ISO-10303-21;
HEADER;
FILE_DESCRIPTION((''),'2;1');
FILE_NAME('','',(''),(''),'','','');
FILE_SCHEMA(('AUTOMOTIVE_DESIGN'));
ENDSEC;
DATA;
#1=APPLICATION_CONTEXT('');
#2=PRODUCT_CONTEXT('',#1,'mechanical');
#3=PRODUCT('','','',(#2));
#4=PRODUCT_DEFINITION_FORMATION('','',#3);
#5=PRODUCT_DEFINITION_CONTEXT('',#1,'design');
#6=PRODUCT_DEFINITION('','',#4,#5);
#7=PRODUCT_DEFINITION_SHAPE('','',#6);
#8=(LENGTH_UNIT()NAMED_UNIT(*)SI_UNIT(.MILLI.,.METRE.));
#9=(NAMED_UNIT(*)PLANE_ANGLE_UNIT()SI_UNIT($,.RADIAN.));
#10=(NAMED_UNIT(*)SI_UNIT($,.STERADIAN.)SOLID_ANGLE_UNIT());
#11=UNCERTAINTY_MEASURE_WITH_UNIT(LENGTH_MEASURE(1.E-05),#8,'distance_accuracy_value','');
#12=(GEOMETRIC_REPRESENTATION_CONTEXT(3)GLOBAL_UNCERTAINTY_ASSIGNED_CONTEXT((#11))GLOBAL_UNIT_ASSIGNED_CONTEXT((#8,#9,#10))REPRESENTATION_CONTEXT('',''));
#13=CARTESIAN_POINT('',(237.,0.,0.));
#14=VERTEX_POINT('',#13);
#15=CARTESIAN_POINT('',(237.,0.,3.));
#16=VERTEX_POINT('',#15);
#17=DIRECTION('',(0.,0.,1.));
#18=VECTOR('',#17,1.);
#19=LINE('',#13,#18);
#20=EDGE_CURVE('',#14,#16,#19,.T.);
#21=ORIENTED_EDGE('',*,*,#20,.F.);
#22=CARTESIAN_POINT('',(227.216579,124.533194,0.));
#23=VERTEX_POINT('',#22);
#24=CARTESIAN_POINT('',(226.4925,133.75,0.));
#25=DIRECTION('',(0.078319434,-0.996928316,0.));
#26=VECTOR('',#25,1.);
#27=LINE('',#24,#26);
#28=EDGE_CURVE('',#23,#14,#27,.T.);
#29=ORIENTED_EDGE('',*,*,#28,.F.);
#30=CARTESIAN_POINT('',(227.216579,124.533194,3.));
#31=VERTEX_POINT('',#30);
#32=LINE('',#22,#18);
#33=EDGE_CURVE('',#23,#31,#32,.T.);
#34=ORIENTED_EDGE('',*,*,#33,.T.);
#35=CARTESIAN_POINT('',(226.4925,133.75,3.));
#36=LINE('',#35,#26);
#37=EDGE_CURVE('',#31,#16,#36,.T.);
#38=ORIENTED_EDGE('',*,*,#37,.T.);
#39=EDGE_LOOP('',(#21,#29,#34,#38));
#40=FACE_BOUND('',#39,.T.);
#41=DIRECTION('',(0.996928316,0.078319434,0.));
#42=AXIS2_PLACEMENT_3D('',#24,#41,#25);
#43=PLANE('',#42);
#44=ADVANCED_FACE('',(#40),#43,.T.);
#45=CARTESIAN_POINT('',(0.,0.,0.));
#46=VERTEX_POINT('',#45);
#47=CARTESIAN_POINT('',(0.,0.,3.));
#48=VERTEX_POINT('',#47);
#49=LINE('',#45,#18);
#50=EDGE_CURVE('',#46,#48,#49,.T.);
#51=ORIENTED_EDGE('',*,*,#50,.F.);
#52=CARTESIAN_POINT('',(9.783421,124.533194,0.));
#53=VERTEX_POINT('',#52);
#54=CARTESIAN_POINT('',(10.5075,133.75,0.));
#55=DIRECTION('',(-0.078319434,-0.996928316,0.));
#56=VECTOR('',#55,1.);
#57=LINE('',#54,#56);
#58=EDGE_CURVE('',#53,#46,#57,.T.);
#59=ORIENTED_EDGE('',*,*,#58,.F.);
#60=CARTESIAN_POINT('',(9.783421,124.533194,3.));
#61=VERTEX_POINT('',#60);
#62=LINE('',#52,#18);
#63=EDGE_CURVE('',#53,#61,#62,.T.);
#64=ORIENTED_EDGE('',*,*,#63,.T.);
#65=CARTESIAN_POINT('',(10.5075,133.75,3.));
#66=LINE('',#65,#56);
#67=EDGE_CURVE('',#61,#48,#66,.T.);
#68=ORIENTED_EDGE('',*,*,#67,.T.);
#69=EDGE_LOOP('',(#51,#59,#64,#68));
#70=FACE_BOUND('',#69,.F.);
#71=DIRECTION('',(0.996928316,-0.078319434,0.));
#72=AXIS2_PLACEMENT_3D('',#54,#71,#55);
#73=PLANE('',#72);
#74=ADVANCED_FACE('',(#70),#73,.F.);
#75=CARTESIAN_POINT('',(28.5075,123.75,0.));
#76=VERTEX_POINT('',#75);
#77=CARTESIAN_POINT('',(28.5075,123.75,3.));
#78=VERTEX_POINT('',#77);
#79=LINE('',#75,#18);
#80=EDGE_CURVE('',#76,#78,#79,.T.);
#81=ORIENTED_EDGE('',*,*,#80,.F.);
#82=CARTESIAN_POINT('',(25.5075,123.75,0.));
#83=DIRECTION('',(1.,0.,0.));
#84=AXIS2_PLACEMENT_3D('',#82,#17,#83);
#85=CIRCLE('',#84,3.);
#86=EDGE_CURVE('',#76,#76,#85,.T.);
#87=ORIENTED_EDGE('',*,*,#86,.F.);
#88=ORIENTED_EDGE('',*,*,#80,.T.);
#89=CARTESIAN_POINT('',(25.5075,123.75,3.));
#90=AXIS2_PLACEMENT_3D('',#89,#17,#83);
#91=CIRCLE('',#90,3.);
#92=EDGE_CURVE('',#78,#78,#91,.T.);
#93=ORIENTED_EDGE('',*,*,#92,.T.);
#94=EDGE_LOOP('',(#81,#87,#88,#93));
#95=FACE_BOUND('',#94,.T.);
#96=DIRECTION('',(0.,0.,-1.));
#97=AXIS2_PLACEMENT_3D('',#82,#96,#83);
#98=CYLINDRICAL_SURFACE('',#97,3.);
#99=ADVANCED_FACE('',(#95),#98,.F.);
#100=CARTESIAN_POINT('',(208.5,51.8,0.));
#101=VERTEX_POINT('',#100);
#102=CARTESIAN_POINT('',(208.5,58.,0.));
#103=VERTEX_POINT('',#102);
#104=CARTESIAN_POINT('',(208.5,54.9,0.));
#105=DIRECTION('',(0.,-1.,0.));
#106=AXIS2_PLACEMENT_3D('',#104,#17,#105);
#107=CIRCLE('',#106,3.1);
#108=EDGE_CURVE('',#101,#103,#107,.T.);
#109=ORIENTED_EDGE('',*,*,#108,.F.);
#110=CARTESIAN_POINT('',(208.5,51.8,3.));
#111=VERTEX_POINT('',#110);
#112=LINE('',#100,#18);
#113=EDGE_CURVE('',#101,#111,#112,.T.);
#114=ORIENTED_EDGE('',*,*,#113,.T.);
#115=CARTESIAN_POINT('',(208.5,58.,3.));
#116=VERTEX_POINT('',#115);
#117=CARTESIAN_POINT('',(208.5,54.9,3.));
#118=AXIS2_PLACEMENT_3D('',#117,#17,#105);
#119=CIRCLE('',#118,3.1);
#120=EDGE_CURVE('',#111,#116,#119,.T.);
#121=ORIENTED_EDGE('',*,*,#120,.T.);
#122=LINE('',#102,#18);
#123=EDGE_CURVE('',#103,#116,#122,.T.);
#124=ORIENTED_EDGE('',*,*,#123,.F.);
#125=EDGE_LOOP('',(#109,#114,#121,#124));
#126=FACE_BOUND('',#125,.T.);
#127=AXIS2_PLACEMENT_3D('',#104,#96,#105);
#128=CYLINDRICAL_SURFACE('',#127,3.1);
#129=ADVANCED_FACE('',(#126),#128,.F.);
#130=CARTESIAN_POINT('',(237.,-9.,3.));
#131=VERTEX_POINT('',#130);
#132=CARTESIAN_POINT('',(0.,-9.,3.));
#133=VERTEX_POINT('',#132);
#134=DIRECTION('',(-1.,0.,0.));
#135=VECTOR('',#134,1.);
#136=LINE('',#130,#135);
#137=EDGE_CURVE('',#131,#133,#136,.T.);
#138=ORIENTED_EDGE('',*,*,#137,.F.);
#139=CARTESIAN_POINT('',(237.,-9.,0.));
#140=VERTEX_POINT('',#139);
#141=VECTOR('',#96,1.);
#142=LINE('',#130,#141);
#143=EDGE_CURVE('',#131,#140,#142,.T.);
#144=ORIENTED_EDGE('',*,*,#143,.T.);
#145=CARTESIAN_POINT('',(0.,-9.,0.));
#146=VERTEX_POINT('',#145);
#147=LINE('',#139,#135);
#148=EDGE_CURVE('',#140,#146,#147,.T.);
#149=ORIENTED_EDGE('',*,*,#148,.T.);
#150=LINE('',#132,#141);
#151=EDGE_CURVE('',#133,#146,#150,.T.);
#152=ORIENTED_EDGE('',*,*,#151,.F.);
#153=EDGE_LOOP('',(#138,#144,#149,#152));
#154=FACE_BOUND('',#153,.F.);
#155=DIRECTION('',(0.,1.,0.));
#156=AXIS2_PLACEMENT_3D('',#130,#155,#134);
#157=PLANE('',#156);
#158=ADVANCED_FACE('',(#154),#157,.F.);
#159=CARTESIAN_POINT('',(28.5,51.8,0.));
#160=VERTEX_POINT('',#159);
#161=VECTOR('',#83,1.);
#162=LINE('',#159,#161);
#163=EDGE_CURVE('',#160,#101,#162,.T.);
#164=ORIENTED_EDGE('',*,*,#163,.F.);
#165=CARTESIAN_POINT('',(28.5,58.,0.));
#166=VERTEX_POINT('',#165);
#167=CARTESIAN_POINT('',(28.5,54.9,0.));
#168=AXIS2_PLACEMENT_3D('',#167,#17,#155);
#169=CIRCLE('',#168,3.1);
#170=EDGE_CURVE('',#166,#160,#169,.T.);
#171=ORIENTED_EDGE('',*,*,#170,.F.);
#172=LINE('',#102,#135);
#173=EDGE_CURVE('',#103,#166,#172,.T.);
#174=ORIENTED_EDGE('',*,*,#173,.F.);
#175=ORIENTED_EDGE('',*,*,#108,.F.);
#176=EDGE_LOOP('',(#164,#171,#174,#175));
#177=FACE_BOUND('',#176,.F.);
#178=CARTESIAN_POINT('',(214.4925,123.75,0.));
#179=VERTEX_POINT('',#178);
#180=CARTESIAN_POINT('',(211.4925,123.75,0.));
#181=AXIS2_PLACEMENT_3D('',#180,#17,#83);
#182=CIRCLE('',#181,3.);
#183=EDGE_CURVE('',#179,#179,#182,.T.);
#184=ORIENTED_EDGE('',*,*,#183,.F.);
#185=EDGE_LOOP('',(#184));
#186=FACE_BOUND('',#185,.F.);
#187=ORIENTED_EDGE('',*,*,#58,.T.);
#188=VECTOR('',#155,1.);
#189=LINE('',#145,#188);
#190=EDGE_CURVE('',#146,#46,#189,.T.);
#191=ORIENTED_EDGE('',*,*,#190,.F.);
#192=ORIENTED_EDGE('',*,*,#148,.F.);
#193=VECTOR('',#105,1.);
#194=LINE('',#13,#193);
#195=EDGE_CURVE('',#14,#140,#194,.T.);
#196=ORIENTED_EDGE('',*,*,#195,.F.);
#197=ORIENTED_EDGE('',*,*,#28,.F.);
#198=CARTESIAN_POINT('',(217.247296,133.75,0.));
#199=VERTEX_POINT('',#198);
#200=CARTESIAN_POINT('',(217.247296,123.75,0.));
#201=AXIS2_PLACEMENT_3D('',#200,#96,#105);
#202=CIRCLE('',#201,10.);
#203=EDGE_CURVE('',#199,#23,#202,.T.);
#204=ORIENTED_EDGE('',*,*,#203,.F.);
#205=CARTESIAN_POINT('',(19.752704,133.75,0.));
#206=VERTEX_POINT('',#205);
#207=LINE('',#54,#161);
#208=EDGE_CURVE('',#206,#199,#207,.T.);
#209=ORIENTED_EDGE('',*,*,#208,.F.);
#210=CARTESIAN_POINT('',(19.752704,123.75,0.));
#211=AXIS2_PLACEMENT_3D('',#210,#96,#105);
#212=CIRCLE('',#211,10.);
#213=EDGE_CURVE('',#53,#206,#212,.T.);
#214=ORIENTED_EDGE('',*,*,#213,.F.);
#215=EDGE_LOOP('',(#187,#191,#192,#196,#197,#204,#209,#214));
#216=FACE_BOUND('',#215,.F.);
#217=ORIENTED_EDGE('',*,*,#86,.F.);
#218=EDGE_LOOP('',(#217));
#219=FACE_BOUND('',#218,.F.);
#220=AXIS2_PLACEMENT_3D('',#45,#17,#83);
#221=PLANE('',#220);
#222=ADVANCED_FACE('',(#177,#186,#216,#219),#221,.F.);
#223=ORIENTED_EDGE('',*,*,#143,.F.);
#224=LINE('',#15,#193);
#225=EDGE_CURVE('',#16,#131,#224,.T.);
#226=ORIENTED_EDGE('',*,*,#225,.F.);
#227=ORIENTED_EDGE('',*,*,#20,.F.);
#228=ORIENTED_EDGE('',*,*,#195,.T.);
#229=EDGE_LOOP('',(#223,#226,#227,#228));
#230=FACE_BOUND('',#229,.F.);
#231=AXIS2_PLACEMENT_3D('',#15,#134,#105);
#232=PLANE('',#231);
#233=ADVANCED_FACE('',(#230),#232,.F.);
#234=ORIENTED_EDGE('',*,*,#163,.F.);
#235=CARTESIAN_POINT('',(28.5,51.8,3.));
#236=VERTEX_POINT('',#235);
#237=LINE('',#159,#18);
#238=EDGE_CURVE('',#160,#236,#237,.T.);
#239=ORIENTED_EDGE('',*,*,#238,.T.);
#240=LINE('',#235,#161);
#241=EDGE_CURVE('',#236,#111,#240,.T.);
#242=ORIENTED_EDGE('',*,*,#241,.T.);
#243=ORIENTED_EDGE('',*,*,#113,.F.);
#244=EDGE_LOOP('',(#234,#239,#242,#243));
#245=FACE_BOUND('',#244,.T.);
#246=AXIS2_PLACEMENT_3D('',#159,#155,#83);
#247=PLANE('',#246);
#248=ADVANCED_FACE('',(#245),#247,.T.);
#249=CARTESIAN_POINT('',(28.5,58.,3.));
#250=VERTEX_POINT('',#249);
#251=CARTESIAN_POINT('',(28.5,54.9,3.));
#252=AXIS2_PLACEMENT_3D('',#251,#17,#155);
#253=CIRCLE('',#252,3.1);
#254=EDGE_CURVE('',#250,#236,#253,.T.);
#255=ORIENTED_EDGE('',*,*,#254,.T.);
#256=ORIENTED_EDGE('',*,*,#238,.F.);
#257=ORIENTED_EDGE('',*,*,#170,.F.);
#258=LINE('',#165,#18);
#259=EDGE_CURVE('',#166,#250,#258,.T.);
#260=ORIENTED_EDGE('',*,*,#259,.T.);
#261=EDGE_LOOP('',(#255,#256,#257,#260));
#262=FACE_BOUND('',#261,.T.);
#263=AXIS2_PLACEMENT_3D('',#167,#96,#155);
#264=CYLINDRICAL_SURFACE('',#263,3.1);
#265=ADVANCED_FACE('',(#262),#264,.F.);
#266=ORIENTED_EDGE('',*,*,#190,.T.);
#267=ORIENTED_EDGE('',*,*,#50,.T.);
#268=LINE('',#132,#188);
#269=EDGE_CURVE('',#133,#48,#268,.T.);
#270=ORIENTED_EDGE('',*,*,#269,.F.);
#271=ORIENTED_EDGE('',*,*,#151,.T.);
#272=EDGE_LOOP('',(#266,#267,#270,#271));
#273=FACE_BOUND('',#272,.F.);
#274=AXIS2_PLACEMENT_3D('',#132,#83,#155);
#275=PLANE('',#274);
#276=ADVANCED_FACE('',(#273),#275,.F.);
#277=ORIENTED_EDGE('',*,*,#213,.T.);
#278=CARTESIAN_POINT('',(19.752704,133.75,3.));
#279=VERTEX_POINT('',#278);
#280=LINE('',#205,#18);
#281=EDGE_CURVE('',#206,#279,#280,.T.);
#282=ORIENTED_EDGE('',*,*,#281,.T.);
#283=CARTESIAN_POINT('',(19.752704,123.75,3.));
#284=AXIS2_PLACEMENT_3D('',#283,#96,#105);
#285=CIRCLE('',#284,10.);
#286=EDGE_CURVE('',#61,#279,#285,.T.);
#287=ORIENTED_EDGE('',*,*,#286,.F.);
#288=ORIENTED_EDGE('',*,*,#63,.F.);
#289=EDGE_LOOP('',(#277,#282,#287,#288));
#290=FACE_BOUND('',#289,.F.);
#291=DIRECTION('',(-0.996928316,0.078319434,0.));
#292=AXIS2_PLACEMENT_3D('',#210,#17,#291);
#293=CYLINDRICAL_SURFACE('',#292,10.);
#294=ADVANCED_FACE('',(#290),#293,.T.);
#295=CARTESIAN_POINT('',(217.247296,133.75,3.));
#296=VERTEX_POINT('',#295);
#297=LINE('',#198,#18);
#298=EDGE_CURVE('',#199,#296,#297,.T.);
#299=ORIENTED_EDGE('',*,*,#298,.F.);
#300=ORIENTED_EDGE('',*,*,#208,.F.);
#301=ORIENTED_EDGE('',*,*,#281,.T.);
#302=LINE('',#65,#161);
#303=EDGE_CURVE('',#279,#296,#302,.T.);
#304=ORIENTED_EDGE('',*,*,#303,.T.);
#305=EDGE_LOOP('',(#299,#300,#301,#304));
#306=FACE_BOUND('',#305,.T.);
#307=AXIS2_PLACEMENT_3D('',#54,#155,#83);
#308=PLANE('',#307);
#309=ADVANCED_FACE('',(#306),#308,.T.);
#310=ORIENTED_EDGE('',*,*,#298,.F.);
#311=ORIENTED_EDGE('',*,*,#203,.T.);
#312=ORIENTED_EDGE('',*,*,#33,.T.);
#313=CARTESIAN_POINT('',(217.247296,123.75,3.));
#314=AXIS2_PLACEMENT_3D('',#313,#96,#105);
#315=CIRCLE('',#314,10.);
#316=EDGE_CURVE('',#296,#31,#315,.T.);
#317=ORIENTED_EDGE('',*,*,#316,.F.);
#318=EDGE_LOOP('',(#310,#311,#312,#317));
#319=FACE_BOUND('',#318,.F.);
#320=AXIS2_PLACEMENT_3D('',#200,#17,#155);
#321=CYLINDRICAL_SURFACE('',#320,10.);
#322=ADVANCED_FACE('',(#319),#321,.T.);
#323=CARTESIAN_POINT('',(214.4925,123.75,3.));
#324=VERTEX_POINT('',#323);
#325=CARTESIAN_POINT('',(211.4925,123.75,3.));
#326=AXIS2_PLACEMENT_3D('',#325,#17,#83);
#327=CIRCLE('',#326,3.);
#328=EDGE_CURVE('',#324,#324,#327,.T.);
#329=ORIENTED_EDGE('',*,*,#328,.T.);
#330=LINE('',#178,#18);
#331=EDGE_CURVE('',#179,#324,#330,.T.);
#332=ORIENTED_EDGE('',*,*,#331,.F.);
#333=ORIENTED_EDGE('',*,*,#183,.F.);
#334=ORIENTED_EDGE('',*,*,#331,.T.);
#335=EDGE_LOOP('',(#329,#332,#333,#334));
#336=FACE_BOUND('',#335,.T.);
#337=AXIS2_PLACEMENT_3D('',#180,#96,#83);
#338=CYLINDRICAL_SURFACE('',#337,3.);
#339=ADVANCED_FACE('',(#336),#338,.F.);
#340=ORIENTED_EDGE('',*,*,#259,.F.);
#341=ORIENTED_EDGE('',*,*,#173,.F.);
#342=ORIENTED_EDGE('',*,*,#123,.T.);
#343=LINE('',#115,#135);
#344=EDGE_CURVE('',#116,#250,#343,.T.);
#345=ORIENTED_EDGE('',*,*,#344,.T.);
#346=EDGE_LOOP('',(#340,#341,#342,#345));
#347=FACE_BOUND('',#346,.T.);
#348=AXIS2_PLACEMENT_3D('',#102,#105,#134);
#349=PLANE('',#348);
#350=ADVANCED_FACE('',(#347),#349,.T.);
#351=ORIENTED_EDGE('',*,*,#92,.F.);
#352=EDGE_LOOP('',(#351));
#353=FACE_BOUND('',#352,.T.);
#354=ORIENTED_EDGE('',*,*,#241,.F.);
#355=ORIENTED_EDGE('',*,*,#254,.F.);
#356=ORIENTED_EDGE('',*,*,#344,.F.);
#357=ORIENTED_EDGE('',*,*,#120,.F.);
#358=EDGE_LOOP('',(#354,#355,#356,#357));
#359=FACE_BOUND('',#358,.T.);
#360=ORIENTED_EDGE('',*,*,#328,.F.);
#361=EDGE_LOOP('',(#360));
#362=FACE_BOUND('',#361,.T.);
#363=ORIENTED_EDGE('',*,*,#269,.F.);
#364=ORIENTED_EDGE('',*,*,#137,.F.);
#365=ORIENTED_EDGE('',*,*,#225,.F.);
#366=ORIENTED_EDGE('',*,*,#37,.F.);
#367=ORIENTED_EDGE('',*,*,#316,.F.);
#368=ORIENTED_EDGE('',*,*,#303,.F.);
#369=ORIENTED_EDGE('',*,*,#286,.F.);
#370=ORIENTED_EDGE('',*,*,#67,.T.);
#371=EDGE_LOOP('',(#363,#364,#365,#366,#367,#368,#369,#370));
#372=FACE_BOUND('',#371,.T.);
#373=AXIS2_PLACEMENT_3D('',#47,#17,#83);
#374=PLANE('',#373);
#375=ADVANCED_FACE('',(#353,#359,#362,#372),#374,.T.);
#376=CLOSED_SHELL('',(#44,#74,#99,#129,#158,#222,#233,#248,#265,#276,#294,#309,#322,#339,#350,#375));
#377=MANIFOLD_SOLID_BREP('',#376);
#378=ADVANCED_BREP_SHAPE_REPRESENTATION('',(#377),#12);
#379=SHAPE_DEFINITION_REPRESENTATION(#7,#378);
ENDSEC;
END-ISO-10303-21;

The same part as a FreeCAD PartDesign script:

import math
import FreeCAD as App
import Part
import Sketcher


def edges_at(feature, points):
    """Names of the edges that pass closest to the given points."""
    edges = feature.Shape.Edges
    near = lambda p: min(range(len(edges)), key=lambda i: edges[i].distToShape(Part.Vertex(*p))[0])
    return sorted({f"Edge{near(p) + 1}" for p in points})


def add_polygon(sketch, points):
    """Adds a closed chain of lines whose ends are joined by coincident constraints."""
    first, n = sketch.GeometryCount, len(points)
    for a, b in zip(points, points[1:] + points[:1]):
        sketch.addGeometry(Part.LineSegment(App.Vector(*a, 0), App.Vector(*b, 0)), False)
    for i in range(n):
        sketch.addConstraint(Sketcher.Constraint("Coincident", first + i, 2, first + (i + 1) % n, 1))

doc = App.newDocument("Part")
body = doc.addObject("PartDesign::Body", "Body")

# Sketch on XY plane
sketch1 = doc.addObject("Sketcher::SketchObject", "Sketch")
body.addObject(sketch1)
sketch1.AttachmentSupport = (doc.XY_Plane, [""])
sketch1.MapMode = "FlatFace"
add_polygon(sketch1, [(10.5, 133.8), (0, 0), (237, 0), (226.5, 133.8)])  # lines 0-3
sketch1.addGeometry(Part.LineSegment(App.Vector(208.5, 51.8, 0), App.Vector(28.5, 51.8, 0)), False)  # 4
sketch1.addGeometry(Part.ArcOfCircle(Part.Circle(App.Vector(28.5, 54.9, 0), App.Vector(0, 0, 1), 3.1), math.radians(90), math.radians(270)), False)  # 5
sketch1.addGeometry(Part.LineSegment(App.Vector(28.5, 58, 0), App.Vector(208.5, 58, 0)), False)  # 6
sketch1.addGeometry(Part.ArcOfCircle(Part.Circle(App.Vector(208.5, 54.9, 0), App.Vector(0, 0, 1), 3.1), math.radians(-90), math.radians(90)), False)  # 7
sketch1.addGeometry(Part.Circle(App.Vector(25.5, 123.8, 0), App.Vector(0, 0, 1), 3), False)  # 8
sketch1.addGeometry(Part.Circle(App.Vector(211.5, 123.8, 0), App.Vector(0, 0, 1), 3), False)  # 9
sketch1.addConstraint([
    Sketcher.Constraint("Tangent", 4, 2, 5, 2),
    Sketcher.Constraint("Tangent", 5, 1, 6, 1),
    Sketcher.Constraint("Tangent", 6, 2, 7, 2),
    Sketcher.Constraint("Tangent", 7, 1, 4, 1),
    Sketcher.Constraint("Horizontal", 1),
    Sketcher.Constraint("Horizontal", 3),
    Sketcher.Constraint("Horizontal", 4),
    Sketcher.Constraint("Horizontal", 6),
    Sketcher.Constraint("Coincident", 0, 2, -1, 1),
    Sketcher.Constraint("Equal", 8, 9),
    Sketcher.Constraint("Horizontal", 8, 3, 9, 3),
    Sketcher.Constraint("Equal", 0, 2),
    Sketcher.Constraint("Diameter", 8, 6.0),
    Sketcher.Constraint("Radius", 5, 3.1),
    Sketcher.Constraint("DistanceX", 1, 1, 1, 2, 237.0),
    Sketcher.Constraint("DistanceX", 4, 2, 4, 1, 180.0),
    Sketcher.Constraint("DistanceX", 9, 3, 2, 2, 15.0),
    Sketcher.Constraint("DistanceY", 9, 3, 2, 2, 10.0),
    Sketcher.Constraint("DistanceX", 3, 2, 8, 3, 15.0),
    Sketcher.Constraint("DistanceX", 3, 2, 3, 1, 215.985),
    Sketcher.Constraint("DistanceY", -1, 1, 2, 2, 133.75),
    Sketcher.Constraint("DistanceY", 4, 2, 3, 2, 81.95),
    Sketcher.Constraint("DistanceX", -1, 1, 5, 3, 28.5),
])
pad1 = doc.addObject("PartDesign::Pad", "Pad")
body.addObject(pad1)
pad1.Profile = sketch1
pad1.Length = 3

# Sketch on XY plane
sketch2 = doc.addObject("Sketcher::SketchObject", "Sketch001")
body.addObject(sketch2)
sketch2.AttachmentSupport = (doc.XY_Plane, [""])
sketch2.MapMode = "FlatFace"
sketch2.AttachmentOffset = App.Placement(App.Vector(0, 0, 3), App.Rotation())
add_polygon(sketch2, [(237, 0), (0, 0), (0, -9), (237, -9)])  # lines 0-3
sketch2.addConstraint([
    Sketcher.Constraint("Horizontal", 0),
    Sketcher.Constraint("Vertical", 1),
    Sketcher.Constraint("Horizontal", 2),
    Sketcher.Constraint("Vertical", 3),
    Sketcher.Constraint("Coincident", 0, 2, -1, 1),
    Sketcher.Constraint("DistanceY", 1, 2, 1, 1, 9.0),
    Sketcher.Constraint("DistanceX", 0, 2, 0, 1, 237.0),
])
pad2 = doc.addObject("PartDesign::Pad", "Pad001")
body.addObject(pad2)
pad2.Profile = sketch2
pad2.Length = 3
pad2.Reversed = True
doc.recompute()

fillet = doc.addObject("PartDesign::Fillet", "Fillet")
body.addObject(fillet)
fillet.Base = (pad2, edges_at(pad2, [(226.493, 133.75, 1.5), (10.508, 133.75, 1.5)]))
fillet.Radius = 10

doc.recompute()
